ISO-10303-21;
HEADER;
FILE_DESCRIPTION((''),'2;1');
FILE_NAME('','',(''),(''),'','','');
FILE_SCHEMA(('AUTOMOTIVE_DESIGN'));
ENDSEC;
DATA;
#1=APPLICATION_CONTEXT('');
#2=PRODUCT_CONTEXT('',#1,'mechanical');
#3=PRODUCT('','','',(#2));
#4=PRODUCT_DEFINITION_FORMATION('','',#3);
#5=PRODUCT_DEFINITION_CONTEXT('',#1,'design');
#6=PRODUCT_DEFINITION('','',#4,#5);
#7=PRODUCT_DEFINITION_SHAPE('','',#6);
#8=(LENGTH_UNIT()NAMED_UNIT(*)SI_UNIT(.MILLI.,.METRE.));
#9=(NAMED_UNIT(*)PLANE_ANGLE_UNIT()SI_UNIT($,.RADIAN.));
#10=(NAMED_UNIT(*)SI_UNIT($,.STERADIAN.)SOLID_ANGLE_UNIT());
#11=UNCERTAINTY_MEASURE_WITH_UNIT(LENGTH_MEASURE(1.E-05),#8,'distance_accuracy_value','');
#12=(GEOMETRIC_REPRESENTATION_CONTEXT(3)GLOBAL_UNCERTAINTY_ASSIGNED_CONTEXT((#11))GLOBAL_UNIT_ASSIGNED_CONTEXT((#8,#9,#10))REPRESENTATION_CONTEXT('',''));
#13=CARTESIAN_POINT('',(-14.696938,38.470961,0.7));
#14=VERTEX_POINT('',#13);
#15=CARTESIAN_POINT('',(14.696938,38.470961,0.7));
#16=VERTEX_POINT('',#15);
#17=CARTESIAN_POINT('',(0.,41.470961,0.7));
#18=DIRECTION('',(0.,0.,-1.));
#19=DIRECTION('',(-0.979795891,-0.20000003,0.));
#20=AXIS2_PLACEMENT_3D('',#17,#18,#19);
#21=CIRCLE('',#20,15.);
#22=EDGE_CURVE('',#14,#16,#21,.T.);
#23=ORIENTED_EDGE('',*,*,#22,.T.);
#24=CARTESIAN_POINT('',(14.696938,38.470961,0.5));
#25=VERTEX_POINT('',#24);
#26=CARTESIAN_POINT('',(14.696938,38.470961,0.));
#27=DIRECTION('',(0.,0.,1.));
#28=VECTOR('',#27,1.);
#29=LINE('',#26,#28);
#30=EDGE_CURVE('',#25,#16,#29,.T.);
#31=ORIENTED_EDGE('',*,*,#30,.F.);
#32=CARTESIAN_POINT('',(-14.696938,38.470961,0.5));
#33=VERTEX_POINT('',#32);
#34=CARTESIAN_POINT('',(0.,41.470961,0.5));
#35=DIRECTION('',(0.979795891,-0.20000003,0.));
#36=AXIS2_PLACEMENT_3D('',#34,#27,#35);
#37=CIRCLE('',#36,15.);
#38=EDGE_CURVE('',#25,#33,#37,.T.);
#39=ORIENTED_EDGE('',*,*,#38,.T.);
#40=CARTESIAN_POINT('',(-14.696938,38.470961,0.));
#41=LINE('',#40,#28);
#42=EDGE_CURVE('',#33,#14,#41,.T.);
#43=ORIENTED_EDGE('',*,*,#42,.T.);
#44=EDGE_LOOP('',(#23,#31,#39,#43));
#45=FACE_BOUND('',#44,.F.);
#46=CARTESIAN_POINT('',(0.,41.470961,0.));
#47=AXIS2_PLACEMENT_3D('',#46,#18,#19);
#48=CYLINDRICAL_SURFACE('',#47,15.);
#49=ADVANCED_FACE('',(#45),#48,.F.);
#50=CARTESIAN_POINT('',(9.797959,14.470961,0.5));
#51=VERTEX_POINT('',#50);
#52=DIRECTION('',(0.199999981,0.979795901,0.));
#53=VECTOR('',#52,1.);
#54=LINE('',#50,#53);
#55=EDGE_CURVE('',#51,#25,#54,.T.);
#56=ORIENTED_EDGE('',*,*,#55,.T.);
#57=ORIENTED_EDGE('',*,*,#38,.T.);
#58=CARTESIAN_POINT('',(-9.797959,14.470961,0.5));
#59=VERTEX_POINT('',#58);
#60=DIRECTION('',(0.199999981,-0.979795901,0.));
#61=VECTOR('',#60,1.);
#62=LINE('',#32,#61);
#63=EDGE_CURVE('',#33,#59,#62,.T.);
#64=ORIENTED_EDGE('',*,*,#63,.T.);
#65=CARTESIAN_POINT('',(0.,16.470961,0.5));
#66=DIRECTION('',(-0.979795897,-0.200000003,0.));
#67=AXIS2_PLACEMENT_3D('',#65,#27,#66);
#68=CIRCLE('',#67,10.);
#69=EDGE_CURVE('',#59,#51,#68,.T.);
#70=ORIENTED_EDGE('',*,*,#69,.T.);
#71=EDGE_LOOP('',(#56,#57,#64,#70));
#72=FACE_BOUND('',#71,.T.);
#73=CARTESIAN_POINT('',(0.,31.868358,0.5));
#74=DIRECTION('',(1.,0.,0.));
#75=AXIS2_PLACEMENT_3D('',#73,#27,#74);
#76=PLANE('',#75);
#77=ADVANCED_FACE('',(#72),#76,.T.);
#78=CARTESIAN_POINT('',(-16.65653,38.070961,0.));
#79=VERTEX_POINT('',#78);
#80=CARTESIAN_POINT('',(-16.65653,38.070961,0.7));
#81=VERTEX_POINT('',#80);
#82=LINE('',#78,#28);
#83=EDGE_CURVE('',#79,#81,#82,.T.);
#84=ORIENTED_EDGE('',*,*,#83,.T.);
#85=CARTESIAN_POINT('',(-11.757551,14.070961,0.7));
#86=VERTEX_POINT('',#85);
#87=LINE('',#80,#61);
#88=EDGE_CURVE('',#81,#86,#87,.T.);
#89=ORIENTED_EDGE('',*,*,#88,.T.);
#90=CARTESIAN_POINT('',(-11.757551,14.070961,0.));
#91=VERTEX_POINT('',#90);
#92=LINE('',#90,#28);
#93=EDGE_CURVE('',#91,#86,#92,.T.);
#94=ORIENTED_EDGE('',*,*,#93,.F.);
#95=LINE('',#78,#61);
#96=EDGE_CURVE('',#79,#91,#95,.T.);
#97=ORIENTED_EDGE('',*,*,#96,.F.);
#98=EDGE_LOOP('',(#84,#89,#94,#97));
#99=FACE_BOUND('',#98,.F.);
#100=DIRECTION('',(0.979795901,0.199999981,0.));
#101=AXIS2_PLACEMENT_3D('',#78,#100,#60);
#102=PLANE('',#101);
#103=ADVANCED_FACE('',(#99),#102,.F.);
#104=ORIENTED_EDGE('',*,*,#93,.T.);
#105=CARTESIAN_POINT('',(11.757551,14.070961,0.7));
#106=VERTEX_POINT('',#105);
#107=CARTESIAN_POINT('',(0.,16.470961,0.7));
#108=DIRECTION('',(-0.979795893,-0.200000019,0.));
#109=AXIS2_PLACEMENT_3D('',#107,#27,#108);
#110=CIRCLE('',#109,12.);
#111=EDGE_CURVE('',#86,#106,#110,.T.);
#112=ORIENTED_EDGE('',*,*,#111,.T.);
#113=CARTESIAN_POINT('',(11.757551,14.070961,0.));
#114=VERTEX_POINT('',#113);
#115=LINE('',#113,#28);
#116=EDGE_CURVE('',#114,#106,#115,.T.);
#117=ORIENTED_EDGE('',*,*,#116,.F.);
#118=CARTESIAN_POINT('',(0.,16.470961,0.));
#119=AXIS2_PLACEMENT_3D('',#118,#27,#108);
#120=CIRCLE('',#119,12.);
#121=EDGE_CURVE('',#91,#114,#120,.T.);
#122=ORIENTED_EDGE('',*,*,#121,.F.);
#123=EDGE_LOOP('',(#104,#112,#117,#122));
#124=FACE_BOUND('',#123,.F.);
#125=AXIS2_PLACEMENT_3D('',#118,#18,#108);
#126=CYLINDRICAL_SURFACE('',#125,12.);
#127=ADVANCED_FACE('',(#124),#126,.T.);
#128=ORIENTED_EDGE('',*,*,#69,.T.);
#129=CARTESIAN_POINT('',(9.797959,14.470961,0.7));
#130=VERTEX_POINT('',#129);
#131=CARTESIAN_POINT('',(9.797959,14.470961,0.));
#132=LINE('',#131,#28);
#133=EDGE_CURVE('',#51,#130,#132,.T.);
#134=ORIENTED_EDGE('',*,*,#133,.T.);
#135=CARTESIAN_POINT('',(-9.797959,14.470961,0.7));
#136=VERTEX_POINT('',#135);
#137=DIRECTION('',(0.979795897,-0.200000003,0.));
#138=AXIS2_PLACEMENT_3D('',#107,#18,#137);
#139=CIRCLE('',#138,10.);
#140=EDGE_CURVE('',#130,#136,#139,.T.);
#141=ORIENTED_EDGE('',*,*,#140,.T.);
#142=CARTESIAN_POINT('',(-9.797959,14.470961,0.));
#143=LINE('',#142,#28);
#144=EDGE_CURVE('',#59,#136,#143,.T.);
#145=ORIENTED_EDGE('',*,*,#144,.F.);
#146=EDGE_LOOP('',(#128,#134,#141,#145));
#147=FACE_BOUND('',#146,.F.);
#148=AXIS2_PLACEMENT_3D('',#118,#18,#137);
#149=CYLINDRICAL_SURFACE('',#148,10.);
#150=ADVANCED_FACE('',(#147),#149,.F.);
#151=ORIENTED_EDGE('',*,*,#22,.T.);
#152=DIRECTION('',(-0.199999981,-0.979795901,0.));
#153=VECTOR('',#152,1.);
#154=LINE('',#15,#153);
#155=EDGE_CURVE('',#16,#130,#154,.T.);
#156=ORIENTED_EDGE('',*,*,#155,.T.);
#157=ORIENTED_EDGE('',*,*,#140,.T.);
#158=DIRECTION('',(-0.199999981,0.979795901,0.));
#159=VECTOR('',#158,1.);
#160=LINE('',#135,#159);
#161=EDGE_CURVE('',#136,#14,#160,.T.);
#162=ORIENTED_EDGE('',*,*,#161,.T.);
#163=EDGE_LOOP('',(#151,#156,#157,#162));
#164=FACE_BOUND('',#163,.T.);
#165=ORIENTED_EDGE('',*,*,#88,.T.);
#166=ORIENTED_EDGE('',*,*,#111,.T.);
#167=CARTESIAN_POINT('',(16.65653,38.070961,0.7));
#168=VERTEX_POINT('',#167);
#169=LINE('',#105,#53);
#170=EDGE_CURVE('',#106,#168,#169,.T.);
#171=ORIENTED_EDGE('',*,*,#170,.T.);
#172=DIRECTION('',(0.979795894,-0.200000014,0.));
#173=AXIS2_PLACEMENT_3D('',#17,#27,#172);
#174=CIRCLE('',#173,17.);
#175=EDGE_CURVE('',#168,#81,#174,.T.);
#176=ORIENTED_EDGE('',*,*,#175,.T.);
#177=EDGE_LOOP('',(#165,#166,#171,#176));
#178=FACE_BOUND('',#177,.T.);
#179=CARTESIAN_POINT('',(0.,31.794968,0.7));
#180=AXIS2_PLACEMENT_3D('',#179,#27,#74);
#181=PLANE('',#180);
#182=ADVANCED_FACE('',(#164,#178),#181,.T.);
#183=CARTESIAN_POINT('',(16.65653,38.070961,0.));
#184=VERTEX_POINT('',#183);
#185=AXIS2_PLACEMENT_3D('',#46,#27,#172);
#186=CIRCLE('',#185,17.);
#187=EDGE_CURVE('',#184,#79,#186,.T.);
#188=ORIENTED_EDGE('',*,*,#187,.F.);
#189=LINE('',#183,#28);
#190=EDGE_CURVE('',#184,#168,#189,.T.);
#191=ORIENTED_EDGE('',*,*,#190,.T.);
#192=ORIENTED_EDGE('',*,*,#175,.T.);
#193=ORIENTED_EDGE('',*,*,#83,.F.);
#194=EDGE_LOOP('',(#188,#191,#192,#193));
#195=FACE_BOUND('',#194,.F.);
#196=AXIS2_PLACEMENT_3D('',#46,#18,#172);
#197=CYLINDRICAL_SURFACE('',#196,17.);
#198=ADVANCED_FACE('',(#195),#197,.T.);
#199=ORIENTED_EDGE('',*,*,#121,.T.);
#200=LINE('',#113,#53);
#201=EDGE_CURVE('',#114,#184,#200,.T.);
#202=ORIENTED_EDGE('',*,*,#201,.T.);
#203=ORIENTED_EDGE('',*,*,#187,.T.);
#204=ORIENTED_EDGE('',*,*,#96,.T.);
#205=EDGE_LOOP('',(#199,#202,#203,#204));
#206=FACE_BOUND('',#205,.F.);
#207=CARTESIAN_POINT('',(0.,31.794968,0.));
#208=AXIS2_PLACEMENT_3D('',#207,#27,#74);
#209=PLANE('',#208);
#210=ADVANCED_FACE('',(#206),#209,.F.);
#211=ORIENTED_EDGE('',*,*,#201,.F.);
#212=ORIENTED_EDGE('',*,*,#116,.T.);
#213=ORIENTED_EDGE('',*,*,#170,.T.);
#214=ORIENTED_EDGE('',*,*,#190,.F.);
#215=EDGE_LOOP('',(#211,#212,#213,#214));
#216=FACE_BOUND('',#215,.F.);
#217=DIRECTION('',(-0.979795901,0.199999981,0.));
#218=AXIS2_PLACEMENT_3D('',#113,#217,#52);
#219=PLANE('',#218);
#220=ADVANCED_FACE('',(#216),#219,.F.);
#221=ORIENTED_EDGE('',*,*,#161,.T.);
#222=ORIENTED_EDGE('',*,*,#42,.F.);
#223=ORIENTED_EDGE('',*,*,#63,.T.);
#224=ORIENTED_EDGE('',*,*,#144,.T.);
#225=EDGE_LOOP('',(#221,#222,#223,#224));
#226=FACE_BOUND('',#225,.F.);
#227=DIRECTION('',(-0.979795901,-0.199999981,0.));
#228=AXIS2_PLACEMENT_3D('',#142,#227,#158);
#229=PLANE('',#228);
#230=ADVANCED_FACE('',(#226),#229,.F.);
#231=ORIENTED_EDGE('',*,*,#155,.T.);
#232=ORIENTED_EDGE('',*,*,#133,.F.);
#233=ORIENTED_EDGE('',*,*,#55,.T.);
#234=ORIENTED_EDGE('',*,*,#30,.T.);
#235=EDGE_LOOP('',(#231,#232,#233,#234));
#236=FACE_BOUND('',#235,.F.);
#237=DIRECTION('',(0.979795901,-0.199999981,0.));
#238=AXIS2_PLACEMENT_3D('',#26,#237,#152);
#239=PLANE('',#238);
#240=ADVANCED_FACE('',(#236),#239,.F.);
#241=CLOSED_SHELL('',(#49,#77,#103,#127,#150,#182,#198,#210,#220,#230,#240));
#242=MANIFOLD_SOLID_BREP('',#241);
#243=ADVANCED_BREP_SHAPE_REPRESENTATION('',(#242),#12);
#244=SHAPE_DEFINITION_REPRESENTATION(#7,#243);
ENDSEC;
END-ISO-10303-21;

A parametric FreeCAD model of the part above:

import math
import FreeCAD as App
import Part
import Sketcher

V = App.Vector
Q = App.Units.Quantity

doc = App.newDocument("Part")
body = doc.addObject("PartDesign::Body", "Body")

sketch1 = body.newObject("Sketcher::SketchObject", "Sketch")
sketch1.AttachmentSupport = (doc.getObject("XY_Plane"), [""])
sketch1.MapMode = "FlatFace"
sketch1.addGeometry(Part.LineSegment(V(10, 14, 0), V(15, 38, 0)), False)
sketch1.addGeometry(Part.ArcOfCircle(Part.Circle(V(0, 41, 0), V(0, 0, 1), 15), math.radians(-12), math.radians(192)), False)
sketch1.addGeometry(Part.LineSegment(V(-15, 38, 0), V(-10, 14, 0)), False)
sketch1.addGeometry(Part.ArcOfCircle(Part.Circle(V(0, 16, 0), V(0, 0, 1), 10), math.radians(-168), math.radians(-12)), False)
sketch1.addConstraint(Sketcher.Constraint("Tangent", 0, 2, 1, 1))
sketch1.addConstraint(Sketcher.Constraint("Tangent", 1, 2, 2, 1))
sketch1.addConstraint(Sketcher.Constraint("Tangent", 2, 2, 3, 1))
sketch1.addConstraint(Sketcher.Constraint("Tangent", 3, 2, 0, 1))
sketch1.addConstraint(Sketcher.Constraint("Symmetric", 0, 2, 1, 2, -2))
sketch1.addConstraint(Sketcher.Constraint("Radius", 1, Q("15 mm")))
sketch1.addConstraint(Sketcher.Constraint("Radius", 3, Q("10 mm")))
sketch1.addConstraint(Sketcher.Constraint("DistanceY", 3, 3, 1, 3, Q("25 mm")))
sketch1.addConstraint(Sketcher.Constraint("DistanceY", -1, 1, 1, 3, Q("41.470961 mm")))
pad1 = body.newObject("PartDesign::Pad", "Pad")
pad1.Profile = sketch1
pad1.Length = 0.5

sketch2 = body.newObject("Sketcher::SketchObject", "Sketch001")
sketch2.AttachmentSupport = (doc.getObject("XY_Plane"), [""])
sketch2.MapMode = "FlatFace"
sketch2.addGeometry(Part.ArcOfCircle(Part.Circle(V(0, 41, 0), V(0, 0, 1), 17), math.radians(-12), math.radians(192)), False)
sketch2.addGeometry(Part.LineSegment(V(-17, 38, 0), V(-12, 14, 0)), False)
sketch2.addGeometry(Part.ArcOfCircle(Part.Circle(V(0, 16, 0), V(0, 0, 1), 12), math.radians(-168), math.radians(-12)), False)
sketch2.addGeometry(Part.LineSegment(V(12, 14, 0), V(17, 38, 0)), False)
sketch2.addGeometry(Part.LineSegment(V(-10, 14, 0), V(-15, 38, 0)), False)
sketch2.addGeometry(Part.ArcOfCircle(Part.Circle(V(0, 41, 0), V(0, 0, 1), 15), math.radians(-12), math.radians(192)), False)
sketch2.addGeometry(Part.LineSegment(V(15, 38, 0), V(10, 14, 0)), False)
sketch2.addGeometry(Part.ArcOfCircle(Part.Circle(V(0, 16, 0), V(0, 0, 1), 10), math.radians(-168), math.radians(-12)), False)
sketch2.addConstraint(Sketcher.Constraint("Tangent", 0, 2, 1, 1))
sketch2.addConstraint(Sketcher.Constraint("Tangent", 1, 2, 2, 1))
sketch2.addConstraint(Sketcher.Constraint("Tangent", 2, 2, 3, 1))
sketch2.addConstraint(Sketcher.Constraint("Tangent", 3, 2, 0, 1))
sketch2.addConstraint(Sketcher.Constraint("Tangent", 4, 2, 5, 2))
sketch2.addConstraint(Sketcher.Constraint("Tangent", 5, 1, 6, 1))
sketch2.addConstraint(Sketcher.Constraint("Tangent", 6, 2, 7, 2))
sketch2.addConstraint(Sketcher.Constraint("Tangent", 7, 1, 4, 1))
sketch2.addConstraint(Sketcher.Constraint("Coincident", 5, 3, 0, 3))
sketch2.addConstraint(Sketcher.Constraint("Coincident", 7, 3, 2, 3))
sketch2.addConstraint(Sketcher.Constraint("Symmetric", 1, 2, 2, 2, -2))
sketch2.addConstraint(Sketcher.Constraint("Parallel", 1, 4))
sketch2.addConstraint(Sketcher.Constraint("Radius", 0, Q("17 mm")))
sketch2.addConstraint(Sketcher.Constraint("Radius", 2, Q("12 mm")))
sketch2.addConstraint(Sketcher.Constraint("Radius", 5, Q("15 mm")))
sketch2.addConstraint(Sketcher.Constraint("DistanceY", 2, 3, 0, 3, Q("25 mm")))
sketch2.addConstraint(Sketcher.Constraint("DistanceY", -1, 1, 0, 3, Q("41.470961 mm")))
pad2 = body.newObject("PartDesign::Pad", "Pad001")
pad2.Profile = sketch2
pad2.Length = 0.7

doc.recompute()
